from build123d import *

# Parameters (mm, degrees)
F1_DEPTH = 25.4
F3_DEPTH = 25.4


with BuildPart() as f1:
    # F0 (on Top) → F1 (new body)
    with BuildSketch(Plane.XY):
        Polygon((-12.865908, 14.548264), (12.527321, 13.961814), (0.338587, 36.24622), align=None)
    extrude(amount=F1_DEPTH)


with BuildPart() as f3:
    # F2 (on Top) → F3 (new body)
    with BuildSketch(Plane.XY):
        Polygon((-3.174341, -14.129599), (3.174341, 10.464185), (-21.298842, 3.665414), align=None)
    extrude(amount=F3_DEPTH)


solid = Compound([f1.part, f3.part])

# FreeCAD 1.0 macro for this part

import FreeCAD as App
import Part
import Sketcher
from FreeCAD import Vector
Q = App.Units.Quantity


def add_polygon(sketch, points):
    """Adds a closed chain of lines whose ends are joined by coincident constraints."""
    first, n = sketch.GeometryCount, len(points)
    for a, b in zip(points, points[1:] + points[:1]):
        sketch.addGeometry(Part.LineSegment(App.Vector(*a, 0), App.Vector(*b, 0)), False)
    for i in range(n):
        sketch.addConstraint(Sketcher.Constraint("Coincident", first + i, 2, first + (i + 1) % n, 1))

doc = App.newDocument("Part")
body = doc.addObject("PartDesign::Body", "Body")

# Sketch on XY plane
sketch1 = body.newObject("Sketcher::SketchObject", "Sketch")
sketch1.AttachmentSupport = (doc.getObject("XY_Plane"), [""])
sketch1.MapMode = "FlatFace"
add_polygon(sketch1, [(-13, 15), (13, 14), (0, 36)])  # lines 0-2
sketch1.addConstraint([
    Sketcher.Constraint("Equal", 0, 1),
    Sketcher.Constraint("Equal", 1, 2),
    Sketcher.Constraint("Distance", 0, Q("1 in")),
    Sketcher.Constraint("DistanceX", -1, 1, 0, 2, Q("12.527321 mm")),
    Sketcher.Constraint("DistanceY", -1, 1, 1, 2, Q("36.24622 mm")),
    Sketcher.Constraint("DistanceX", 2, 2, 0, 2, Q("25.393229 mm")),
])
pad1 = body.newObject("PartDesign::Pad", "Pad")
pad1.Profile = sketch1
pad1.Length = Q("1 in")
body2 = doc.addObject("PartDesign::Body", "Body001")

# Sketch on XY plane
sketch2 = body2.newObject("Sketcher::SketchObject", "Sketch001")
sketch2.AttachmentSupport = (doc.getObject("XY_Plane001"), [""])
sketch2.MapMode = "FlatFace"
add_polygon(sketch2, [(-3, -14), (3, 10), (-21, 4)])  # lines 0-2
sketch2.addConstraint([
    Sketcher.Constraint("Equal", 0, 1),
    Sketcher.Constraint("Equal", 1, 2),
    Sketcher.Constraint("Distance", 0, Q("1 in")),
    Sketcher.Constraint("DistanceY", 2, 2, -1, 1, Q("14.129599 mm")),
    Sketcher.Constraint("DistanceX", 1, 2, 2, 2, Q("18.124501 mm")),
    Sketcher.Constraint("DistanceX", -1, 1, 0, 2, Q("3.174341 mm")),
])
pad2 = body2.newObject("PartDesign::Pad", "Pad001")
pad2.Profile = sketch2
pad2.Length = Q("1 in")

doc.recompute()
